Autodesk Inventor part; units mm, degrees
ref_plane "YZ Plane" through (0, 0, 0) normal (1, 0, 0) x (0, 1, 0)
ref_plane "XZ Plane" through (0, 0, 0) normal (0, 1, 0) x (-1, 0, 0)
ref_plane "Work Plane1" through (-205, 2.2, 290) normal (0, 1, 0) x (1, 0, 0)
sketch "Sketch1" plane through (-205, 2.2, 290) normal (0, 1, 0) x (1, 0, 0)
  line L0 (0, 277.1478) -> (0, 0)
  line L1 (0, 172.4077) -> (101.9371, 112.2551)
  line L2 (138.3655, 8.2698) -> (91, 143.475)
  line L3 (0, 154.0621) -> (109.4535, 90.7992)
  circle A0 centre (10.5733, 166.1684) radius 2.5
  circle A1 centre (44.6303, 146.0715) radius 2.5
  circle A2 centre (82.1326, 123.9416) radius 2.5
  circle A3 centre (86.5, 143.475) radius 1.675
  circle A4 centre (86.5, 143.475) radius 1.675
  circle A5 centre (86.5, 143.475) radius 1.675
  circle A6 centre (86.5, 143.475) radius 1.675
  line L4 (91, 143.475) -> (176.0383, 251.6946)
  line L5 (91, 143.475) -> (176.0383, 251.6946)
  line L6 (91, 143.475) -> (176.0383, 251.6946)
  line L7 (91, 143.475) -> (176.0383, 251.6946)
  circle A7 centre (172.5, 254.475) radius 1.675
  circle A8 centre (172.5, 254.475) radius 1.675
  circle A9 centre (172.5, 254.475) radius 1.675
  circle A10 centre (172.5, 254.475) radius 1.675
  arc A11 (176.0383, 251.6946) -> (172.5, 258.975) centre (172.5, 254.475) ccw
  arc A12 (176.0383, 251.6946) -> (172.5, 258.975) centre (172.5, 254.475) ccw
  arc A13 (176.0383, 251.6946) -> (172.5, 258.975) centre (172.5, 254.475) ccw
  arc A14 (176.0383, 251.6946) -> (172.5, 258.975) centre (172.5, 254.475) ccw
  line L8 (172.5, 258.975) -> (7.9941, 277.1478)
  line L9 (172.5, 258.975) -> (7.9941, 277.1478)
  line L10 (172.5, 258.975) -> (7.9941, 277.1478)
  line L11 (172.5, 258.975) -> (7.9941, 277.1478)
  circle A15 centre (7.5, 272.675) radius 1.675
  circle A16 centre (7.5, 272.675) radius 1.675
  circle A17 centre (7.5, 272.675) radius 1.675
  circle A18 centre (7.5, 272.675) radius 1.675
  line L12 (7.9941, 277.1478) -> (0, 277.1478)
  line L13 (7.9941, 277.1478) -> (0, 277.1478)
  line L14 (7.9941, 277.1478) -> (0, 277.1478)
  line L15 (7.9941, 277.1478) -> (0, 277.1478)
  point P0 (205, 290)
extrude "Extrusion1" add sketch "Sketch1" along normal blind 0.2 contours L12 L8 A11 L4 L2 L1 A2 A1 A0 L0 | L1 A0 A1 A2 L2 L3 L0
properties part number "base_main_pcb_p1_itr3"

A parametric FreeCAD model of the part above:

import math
import FreeCAD as App
import Part
import Sketcher
from FreeCAD import Vector

doc = App.newDocument("Part")
body = doc.addObject("PartDesign::Body", "Body")

sketch1 = body.newObject("Sketcher::SketchObject", "Sketch")
sketch1.AttachmentSupport = (doc.getObject("XZ_Plane"), [""])
sketch1.MapMode = "FlatFace"
sketch1.AttachmentOffset = App.Placement(Vector(0, 0, -2.2), App.Rotation())
sketch1.addGeometry(Part.LineSegment(Vector(-197.0059, 12.8522, 0), Vector(-205, 12.8522, 0)), False)
sketch1.addGeometry(Part.LineSegment(Vector(-205, 12.8522, 0), Vector(-205, 135.9379, 0)), False)
sketch1.addGeometry(Part.LineSegment(Vector(-205, 135.9379, 0), Vector(-95.5465, 199.2008, 0)), False)
sketch1.addGeometry(Part.LineSegment(Vector(-95.5465, 199.2008, 0), Vector(-114, 146.525, 0)), False)
sketch1.addGeometry(Part.LineSegment(Vector(-114, 146.525, 0), Vector(-28.9617, 38.3054, 0)), False)
sketch1.addGeometry(Part.ArcOfCircle(Part.Circle(Vector(-32.5, 35.525, 0), Vector(0, 0, 1), 4.500021), math.radians(-90), math.radians(38.160302)), False)
sketch1.addGeometry(Part.LineSegment(Vector(-32.5, 31.025, 0), Vector(-197.0059, 12.8522, 0)), False)
sketch1.addGeometry(Part.Circle(Vector(-122.8674, 166.0584, 0), Vector(0, 0, 1), 2.5), False)
sketch1.addGeometry(Part.Circle(Vector(-160.3697, 143.9285, 0), Vector(0, 0, 1), 2.5), False)
sketch1.addGeometry(Part.Circle(Vector(-194.4267, 123.8316, 0), Vector(0, 0, 1), 2.5), False)
sketch1.addGeometry(Part.Circle(Vector(-118.5, 146.525, 0), Vector(0, 0, 1), 1.675), False)
sketch1.addGeometry(Part.Circle(Vector(-197.5, 17.325, 0), Vector(0, 0, 1), 1.675), False)
sketch1.addGeometry(Part.Circle(Vector(-32.5, 35.525, 0), Vector(0, 0, 1), 1.675), False)
sketch1.addConstraint(Sketcher.Constraint("Coincident", 0, 2, 1, 1))
sketch1.addConstraint(Sketcher.Constraint("Coincident", 1, 2, 2, 1))
sketch1.addConstraint(Sketcher.Constraint("Coincident", 2, 2, 3, 1))
sketch1.addConstraint(Sketcher.Constraint("Coincident", 3, 2, 4, 1))
sketch1.addConstraint(Sketcher.Constraint("Tangent", 4, 2, 5, 2))
sketch1.addConstraint(Sketcher.Constraint("Coincident", 5, 1, 6, 1))
sketch1.addConstraint(Sketcher.Constraint("Coincident", 6, 2, 0, 1))
sketch1.addConstraint(Sketcher.Constraint("Horizontal", 0))
sketch1.addConstraint(Sketcher.Constraint("Vertical", 1))
sketch1.addConstraint(Sketcher.Constraint("Coincident", 12, 3, 5, 3))
sketch1.addConstraint(Sketcher.Constraint("Equal", 7, 8))
sketch1.addConstraint(Sketcher.Constraint("Equal", 8, 9))
sketch1.addConstraint(Sketcher.Constraint("Equal", 10, 11))
sketch1.addConstraint(Sketcher.Constraint("Equal", 11, 12))
sketch1.addConstraint(Sketcher.Constraint("Horizontal", 10, 3, 3, 2))
sketch1.addConstraint(Sketcher.Constraint("Vertical", 12, 3, 5, 1))
sketch1.addConstraint(Sketcher.Constraint("Diameter", 7, 5.0))
sketch1.addConstraint(Sketcher.Constraint("Radius", 5, 4.5))
sketch1.addConstraint(Sketcher.Constraint("Diameter", 10, 3.35))
sketch1.addConstraint(Sketcher.Constraint("DistanceX", 0, 2, -1, 1, 205.0))
sketch1.addConstraint(Sketcher.Constraint("DistanceX", 3, 2, -1, 1, 114.0))
sketch1.addConstraint(Sketcher.Constraint("DistanceX", 10, 3, 5, 3, 86.0))
sketch1.addConstraint(Sketcher.Constraint("DistanceY", 5, 3, 10, 3, 111.0))
sketch1.addConstraint(Sketcher.Constraint("DistanceX", 11, 3, 10, 3, 79.0))
sketch1.addConstraint(Sketcher.Constraint("DistanceX", 5, 3, -1, 1, 32.5))
sketch1.addConstraint(Sketcher.Constraint("DistanceY", 11, 3, 10, 3, 129.2))
sketch1.addConstraint(Sketcher.Constraint("DistanceX", 0, 2, 0, 1, 7.994))
sketch1.addConstraint(Sketcher.Constraint("DistanceY", 8, 3, 7, 3, 22.13))
sketch1.addConstraint(Sketcher.Constraint("Distance", 2, 126.421))
sketch1.addConstraint(Sketcher.Constraint("DistanceY", 1, 1, 1, 2, 123.0857))
sketch1.addConstraint(Sketcher.Constraint("DistanceY", -1, 1, 5, 3, 35.525))
sketch1.addConstraint(Sketcher.Constraint("DistanceY", -1, 1, 1, 2, 135.938))
sketch1.addConstraint(Sketcher.Constraint("DistanceX", 9, 3, 8, 3, 34.057))
sketch1.addConstraint(Sketcher.Constraint("DistanceY", 9, 3, 8, 3, 20.097))
sketch1.addConstraint(Sketcher.Constraint("DistanceX", 7, 3, 2, 2, 27.321))
sketch1.addConstraint(Sketcher.Constraint("DistanceY", 1, 2, 2, 2, 63.263))
sketch1.addConstraint(Sketcher.Constraint("DistanceY", 4, 2, 7, 3, 127.753))
sketch1.addConstraint(Sketcher.Constraint("DistanceX", 8, 3, -1, 1, 160.3697))
pad1 = body.newObject("PartDesign::Pad", "Pad")
pad1.Profile = sketch1
pad1.Length = 0.2
pad1.Reversed = True

doc.recompute()
